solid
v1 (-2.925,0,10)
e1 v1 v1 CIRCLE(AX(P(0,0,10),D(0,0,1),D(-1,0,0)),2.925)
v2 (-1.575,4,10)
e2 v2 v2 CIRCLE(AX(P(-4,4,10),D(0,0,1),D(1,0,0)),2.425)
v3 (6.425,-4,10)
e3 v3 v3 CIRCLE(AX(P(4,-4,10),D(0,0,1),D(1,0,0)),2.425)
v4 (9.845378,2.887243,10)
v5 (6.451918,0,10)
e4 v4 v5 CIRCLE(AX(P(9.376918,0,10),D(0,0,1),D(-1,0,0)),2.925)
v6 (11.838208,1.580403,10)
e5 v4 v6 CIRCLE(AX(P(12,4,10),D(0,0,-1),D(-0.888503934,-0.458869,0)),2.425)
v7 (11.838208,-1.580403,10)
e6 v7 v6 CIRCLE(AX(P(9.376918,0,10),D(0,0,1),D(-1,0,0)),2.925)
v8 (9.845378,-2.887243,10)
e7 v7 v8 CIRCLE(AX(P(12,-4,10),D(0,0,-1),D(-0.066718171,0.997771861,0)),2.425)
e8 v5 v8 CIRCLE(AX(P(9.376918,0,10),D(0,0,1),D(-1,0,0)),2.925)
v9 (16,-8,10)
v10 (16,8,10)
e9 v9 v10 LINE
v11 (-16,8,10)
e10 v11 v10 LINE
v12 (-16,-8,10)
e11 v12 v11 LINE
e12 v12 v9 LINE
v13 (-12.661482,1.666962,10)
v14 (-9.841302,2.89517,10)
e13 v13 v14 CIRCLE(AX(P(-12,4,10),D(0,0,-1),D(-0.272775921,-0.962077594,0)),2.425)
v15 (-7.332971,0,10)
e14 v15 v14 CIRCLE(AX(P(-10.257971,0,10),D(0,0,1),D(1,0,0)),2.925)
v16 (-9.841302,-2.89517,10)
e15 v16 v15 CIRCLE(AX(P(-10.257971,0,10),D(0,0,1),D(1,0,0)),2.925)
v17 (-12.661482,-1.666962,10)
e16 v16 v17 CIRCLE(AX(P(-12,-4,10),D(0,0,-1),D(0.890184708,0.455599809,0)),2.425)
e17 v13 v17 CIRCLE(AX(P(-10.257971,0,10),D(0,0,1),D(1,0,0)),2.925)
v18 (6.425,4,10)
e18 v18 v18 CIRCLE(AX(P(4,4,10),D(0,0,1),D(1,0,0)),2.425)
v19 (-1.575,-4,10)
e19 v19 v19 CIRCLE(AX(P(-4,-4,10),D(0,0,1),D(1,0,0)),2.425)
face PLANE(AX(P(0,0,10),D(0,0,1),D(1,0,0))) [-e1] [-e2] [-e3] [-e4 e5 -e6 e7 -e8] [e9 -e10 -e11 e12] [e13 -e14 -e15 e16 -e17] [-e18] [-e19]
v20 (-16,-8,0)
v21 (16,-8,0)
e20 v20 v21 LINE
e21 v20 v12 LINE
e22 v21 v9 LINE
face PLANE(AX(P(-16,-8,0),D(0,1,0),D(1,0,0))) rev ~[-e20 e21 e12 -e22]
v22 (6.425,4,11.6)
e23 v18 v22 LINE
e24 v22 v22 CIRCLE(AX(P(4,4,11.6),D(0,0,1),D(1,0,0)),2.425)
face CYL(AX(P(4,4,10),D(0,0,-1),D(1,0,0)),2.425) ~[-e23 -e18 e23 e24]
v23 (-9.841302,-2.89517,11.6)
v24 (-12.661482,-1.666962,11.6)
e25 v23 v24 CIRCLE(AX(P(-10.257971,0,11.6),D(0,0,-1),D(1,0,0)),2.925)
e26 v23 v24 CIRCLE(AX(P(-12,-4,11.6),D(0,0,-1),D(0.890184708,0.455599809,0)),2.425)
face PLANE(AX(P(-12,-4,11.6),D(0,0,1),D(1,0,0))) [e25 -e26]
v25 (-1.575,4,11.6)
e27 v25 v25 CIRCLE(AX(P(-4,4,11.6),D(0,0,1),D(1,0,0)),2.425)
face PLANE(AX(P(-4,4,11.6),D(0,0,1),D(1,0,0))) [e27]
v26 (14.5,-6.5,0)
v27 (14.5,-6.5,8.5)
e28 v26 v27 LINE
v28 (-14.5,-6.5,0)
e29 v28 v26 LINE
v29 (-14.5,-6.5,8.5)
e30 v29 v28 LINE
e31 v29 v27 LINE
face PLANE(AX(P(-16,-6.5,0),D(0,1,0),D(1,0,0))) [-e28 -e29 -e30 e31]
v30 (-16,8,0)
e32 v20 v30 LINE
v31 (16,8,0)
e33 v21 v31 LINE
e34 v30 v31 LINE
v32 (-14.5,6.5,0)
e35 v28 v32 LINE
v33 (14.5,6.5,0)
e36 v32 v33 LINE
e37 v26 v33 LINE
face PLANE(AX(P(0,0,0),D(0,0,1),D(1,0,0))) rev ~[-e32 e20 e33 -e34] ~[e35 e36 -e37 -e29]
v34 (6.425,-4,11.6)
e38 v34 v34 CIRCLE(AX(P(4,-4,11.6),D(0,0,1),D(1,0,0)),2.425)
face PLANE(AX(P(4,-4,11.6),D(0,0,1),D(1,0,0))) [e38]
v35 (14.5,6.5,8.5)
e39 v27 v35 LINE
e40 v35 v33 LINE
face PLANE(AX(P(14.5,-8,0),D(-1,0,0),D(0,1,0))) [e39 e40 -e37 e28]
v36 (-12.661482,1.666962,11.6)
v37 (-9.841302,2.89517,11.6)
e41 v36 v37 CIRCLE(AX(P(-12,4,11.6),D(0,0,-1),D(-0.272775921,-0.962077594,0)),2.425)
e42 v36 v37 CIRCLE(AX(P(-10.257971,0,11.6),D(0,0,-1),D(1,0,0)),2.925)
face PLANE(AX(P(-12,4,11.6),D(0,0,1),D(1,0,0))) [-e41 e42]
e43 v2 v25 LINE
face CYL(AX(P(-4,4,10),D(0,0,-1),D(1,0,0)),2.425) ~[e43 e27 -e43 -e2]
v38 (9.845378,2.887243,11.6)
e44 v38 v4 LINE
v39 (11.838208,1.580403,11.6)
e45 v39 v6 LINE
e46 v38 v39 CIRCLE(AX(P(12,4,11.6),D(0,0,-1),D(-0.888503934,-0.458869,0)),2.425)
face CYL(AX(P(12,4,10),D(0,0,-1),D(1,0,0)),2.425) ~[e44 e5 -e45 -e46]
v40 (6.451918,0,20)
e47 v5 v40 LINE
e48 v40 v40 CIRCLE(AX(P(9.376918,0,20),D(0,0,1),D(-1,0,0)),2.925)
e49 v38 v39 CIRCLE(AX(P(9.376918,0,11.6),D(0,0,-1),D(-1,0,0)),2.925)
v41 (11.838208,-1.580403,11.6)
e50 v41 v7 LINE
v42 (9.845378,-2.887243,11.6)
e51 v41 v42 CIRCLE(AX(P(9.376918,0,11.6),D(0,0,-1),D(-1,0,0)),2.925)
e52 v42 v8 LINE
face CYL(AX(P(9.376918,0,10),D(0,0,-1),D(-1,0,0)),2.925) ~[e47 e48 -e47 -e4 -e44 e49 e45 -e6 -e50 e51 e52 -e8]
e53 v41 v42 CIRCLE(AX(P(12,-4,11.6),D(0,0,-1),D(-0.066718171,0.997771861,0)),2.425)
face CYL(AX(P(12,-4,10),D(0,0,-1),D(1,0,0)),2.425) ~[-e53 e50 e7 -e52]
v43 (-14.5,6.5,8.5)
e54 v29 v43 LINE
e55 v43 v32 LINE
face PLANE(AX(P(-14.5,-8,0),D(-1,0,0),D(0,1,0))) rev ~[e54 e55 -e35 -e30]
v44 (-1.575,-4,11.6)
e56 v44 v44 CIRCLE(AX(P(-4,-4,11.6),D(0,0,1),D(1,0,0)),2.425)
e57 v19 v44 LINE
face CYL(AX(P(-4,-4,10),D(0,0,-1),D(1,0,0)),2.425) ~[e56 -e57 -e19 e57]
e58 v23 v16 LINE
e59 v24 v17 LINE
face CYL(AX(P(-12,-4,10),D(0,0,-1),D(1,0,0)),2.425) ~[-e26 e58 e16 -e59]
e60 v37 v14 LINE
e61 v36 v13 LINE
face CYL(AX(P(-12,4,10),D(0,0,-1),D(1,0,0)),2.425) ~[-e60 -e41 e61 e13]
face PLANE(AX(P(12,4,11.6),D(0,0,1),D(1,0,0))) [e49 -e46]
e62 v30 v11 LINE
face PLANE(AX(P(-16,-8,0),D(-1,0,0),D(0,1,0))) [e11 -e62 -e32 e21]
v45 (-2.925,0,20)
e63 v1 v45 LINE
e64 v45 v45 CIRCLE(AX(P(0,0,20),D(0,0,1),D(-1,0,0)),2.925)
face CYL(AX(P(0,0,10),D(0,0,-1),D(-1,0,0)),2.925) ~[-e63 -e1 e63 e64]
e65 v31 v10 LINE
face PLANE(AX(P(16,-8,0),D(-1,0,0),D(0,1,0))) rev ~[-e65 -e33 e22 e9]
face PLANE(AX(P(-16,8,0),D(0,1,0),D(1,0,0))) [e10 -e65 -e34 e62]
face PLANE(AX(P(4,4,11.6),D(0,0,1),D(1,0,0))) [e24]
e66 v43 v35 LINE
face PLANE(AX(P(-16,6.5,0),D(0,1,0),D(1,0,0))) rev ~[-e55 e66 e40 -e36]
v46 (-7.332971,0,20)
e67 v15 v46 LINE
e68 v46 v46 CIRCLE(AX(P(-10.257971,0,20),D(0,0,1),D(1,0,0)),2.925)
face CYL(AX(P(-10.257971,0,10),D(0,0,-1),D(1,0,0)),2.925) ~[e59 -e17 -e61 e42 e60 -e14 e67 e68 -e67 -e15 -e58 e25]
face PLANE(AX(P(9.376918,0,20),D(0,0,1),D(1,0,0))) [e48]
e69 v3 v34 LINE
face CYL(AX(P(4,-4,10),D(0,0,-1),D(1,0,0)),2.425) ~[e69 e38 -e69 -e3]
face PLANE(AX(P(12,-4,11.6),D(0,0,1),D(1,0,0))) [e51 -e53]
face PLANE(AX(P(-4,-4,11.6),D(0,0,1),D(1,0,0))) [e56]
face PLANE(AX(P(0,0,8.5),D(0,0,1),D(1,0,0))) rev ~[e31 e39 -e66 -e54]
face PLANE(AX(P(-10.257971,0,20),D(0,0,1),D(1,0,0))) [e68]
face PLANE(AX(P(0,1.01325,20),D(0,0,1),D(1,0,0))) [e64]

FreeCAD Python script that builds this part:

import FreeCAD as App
import Part
import Sketcher


def faces_at(feature, points):
    """Names of the faces that lie closest to the given points."""
    faces = feature.Shape.Faces
    near = lambda p: min(range(len(faces)), key=lambda i: faces[i].distToShape(Part.Vertex(*p))[0])
    return sorted({f"Face{near(p) + 1}" for p in points})


def add_polygon(sketch, points):
    """Adds a closed chain of lines whose ends are joined by coincident constraints."""
    first, n = sketch.GeometryCount, len(points)
    for a, b in zip(points, points[1:] + points[:1]):
        sketch.addGeometry(Part.LineSegment(App.Vector(*a, 0), App.Vector(*b, 0)), False)
    for i in range(n):
        sketch.addConstraint(Sketcher.Constraint("Coincident", first + i, 2, first + (i + 1) % n, 1))

doc = App.newDocument("Part")
body = doc.addObject("PartDesign::Body", "Body")

# Sketch on XY plane
sketch1 = body.newObject("Sketcher::SketchObject", "Sketch")
sketch1.AttachmentSupport = (doc.getObject("XY_Plane"), [""])
sketch1.MapMode = "FlatFace"
add_polygon(sketch1, [(-16, 8), (-16, -8), (16, -8), (16, 8)])  # lines 0-3
sketch1.addConstraint([
    Sketcher.Constraint("Vertical", 0),
    Sketcher.Constraint("Horizontal", 1),
    Sketcher.Constraint("Vertical", 2),
    Sketcher.Constraint("Horizontal", 3),
    Sketcher.Constraint("Symmetric", 0, 2, 2, 2, -1, 1),
    Sketcher.Constraint("DistanceX", 1, 1, 1, 2, 32.0),
    Sketcher.Constraint("DistanceY", 0, 2, 0, 1, 16.0),
])
pad1 = body.newObject("PartDesign::Pad", "Pad")
pad1.Profile = sketch1
pad1.Length = 10
doc.recompute()

thickness = body.newObject("PartDesign::Thickness", "Thickness")
thickness.Base = (pad1, faces_at(pad1, [(0, 0, 0)]))
thickness.Value = 1.5
thickness.Reversed = True
thickness.Join = "Arc"

# Sketch on XY plane
sketch2 = body.newObject("Sketcher::SketchObject", "Sketch001")
sketch2.AttachmentSupport = (doc.getObject("XY_Plane"), [""])
sketch2.MapMode = "FlatFace"
sketch2.AttachmentOffset = App.Placement(App.Vector(0, 0, 10), App.Rotation())
sketch2.addGeometry([
    Part.Circle(App.Vector(-12, -4, 0), App.Vector(0, 0, 1), 2.4),  # 0
    Part.Circle(App.Vector(-12, 4, 0), App.Vector(0, 0, 1), 2.4),  # 1
    Part.Circle(App.Vector(-4, -4, 0), App.Vector(0, 0, 1), 2.4),  # 2
    Part.Circle(App.Vector(-4, 4, 0), App.Vector(0, 0, 1), 2.4),  # 3
    Part.Circle(App.Vector(4, -4, 0), App.Vector(0, 0, 1), 2.4),  # 4
    Part.Circle(App.Vector(4, 4, 0), App.Vector(0, 0, 1), 2.4),  # 5
    Part.Circle(App.Vector(12, -4, 0), App.Vector(0, 0, 1), 2.4),  # 6
    Part.Circle(App.Vector(12, 4, 0), App.Vector(0, 0, 1), 2.4),  # 7
], False)
sketch2.addConstraint([
    Sketcher.Constraint("Equal", 0, 1),
    Sketcher.Constraint("Equal", 1, 2),
    Sketcher.Constraint("Equal", 2, 3),
    Sketcher.Constraint("Equal", 3, 4),
    Sketcher.Constraint("Equal", 4, 5),
    Sketcher.Constraint("Equal", 5, 6),
    Sketcher.Constraint("Equal", 6, 7),
    Sketcher.Constraint("Symmetric", 3, 3, 4, 3, -1, 1),
    Sketcher.Constraint("Symmetric", 2, 3, 5, 3, -1, 1),
    Sketcher.Constraint("Symmetric", 1, 3, 6, 3, -1, 1),
    Sketcher.Constraint("Symmetric", 0, 3, 7, 3, -1, 1),
    Sketcher.Constraint("Symmetric", 2, 3, 4, 3, -2),
    Sketcher.Constraint("Symmetric", 0, 3, 6, 3, -2),
    Sketcher.Constraint("Horizontal", 0, 3, 2, 3),
    Sketcher.Constraint("Diameter", 0, 4.85),
    Sketcher.Constraint("DistanceX", 0, 3, -1, 1, 12.0),
    Sketcher.Constraint("DistanceY", 0, 3, -1, 1, 4.0),
    Sketcher.Constraint("DistanceX", 2, 3, -1, 1, 4.0),
])
pad2 = body.newObject("PartDesign::Pad", "Pad001")
pad2.Profile = sketch2
pad2.Length = 1.6

# Sketch on XY plane
sketch3 = body.newObject("Sketcher::SketchObject", "Sketch002")
sketch3.AttachmentSupport = (doc.getObject("XY_Plane"), [""])
sketch3.MapMode = "FlatFace"
sketch3.AttachmentOffset = App.Placement(App.Vector(0, 0, 10), App.Rotation())
sketch3.addGeometry([
    Part.Circle(App.Vector(-10.3, 0, 0), App.Vector(0, 0, 1), 2.9),
    Part.Circle(App.Vector(9.4, 0, 0), App.Vector(0, 0, 1), 2.9),
    Part.Circle(App.Vector(0, 0, 0), App.Vector(0, 0, 1), 2.9),
], False)
sketch3.addConstraint([
    Sketcher.Constraint("Coincident", 2, 3, -1, 1),
    Sketcher.Constraint("Equal", 0, 1),
    Sketcher.Constraint("Equal", 1, 2),
    Sketcher.Constraint("PointOnObject", 0, 3, -1),
    Sketcher.Constraint("PointOnObject", 1, 3, -1),
    Sketcher.Constraint("Diameter", 0, 5.85),
    Sketcher.Constraint("DistanceX", 0, 3, -1, 1, 10.257971),
    Sketcher.Constraint("DistanceX", 0, 3, 1, 3, 19.634889),
])
pad3 = body.newObject("PartDesign::Pad", "Pad002")
pad3.Profile = sketch3
pad3.Length = 10

doc.recompute()
